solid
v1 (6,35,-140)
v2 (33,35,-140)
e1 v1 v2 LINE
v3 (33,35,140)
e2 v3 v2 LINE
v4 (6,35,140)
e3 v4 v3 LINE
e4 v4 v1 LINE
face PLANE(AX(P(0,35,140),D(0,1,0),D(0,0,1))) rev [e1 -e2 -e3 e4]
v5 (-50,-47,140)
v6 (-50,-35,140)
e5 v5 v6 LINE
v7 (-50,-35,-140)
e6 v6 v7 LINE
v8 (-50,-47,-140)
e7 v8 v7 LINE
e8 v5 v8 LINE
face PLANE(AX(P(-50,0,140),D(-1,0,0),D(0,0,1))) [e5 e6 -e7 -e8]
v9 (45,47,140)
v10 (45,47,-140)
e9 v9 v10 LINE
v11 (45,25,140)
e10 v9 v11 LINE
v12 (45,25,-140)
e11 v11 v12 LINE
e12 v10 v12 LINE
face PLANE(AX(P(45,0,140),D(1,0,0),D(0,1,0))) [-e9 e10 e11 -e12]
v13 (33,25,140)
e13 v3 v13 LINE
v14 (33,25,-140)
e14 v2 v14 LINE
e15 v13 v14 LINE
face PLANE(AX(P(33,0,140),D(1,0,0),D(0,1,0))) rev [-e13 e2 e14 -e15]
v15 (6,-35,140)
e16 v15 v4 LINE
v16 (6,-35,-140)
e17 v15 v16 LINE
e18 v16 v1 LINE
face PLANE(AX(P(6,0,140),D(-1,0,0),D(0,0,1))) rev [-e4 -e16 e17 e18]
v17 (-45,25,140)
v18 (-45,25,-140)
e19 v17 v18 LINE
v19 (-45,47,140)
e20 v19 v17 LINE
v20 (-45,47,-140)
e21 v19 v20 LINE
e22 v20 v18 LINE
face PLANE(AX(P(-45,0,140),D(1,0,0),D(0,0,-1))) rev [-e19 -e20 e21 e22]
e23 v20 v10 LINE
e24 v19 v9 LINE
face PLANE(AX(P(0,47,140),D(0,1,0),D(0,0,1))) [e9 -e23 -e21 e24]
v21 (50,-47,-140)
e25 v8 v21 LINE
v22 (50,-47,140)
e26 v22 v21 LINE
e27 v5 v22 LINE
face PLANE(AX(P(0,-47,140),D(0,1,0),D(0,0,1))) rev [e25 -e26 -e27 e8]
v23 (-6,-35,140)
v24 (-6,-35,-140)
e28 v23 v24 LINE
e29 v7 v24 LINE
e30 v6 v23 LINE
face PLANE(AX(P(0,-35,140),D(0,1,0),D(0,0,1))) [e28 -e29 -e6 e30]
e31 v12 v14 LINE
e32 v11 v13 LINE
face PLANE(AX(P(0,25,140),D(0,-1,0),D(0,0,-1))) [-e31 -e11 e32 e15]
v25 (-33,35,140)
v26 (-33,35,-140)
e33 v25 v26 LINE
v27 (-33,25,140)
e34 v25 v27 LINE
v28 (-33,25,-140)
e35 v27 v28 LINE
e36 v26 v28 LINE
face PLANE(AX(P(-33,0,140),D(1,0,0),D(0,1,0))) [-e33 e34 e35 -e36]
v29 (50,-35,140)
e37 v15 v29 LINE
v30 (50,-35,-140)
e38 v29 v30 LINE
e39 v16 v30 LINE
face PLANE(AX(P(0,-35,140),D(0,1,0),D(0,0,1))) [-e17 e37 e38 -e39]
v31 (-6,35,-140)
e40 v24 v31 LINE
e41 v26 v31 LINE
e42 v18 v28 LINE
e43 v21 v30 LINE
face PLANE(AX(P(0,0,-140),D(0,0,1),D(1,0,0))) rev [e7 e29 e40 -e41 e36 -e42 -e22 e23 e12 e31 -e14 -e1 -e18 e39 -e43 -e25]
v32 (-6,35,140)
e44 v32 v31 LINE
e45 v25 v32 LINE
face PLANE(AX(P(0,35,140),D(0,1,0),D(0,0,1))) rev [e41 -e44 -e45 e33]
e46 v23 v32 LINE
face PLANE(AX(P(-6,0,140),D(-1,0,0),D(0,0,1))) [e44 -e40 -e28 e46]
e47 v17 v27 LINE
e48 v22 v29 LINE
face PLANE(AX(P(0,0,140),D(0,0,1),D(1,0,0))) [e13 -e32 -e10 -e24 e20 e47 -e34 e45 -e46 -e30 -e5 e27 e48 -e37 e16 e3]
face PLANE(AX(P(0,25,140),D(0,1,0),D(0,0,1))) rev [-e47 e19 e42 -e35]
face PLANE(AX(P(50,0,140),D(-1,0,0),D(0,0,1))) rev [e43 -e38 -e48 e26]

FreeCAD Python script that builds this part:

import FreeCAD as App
import Part
import Sketcher

V = App.Vector


def add_polygon(sketch, points):
    """Adds a closed chain of lines whose ends are joined by coincident constraints."""
    first, n = sketch.GeometryCount, len(points)
    for a, b in zip(points, points[1:] + points[:1]):
        sketch.addGeometry(Part.LineSegment(App.Vector(*a, 0), App.Vector(*b, 0)), False)
    for i in range(n):
        sketch.addConstraint(Sketcher.Constraint("Coincident", first + i, 2, first + (i + 1) % n, 1))

doc = App.newDocument("Part")
params = doc.addObject("Spreadsheet::Sheet", "Params")
for row, (alias, value) in enumerate([
    ("sketch1_width", "90 mm"),
    ("sketch1_width2", "12 mm"),
    ("sketch1_width3", "27 mm"),
    ("sketch1_width4", "44 mm"),
    ("sketch1_height", "22 mm"),
    ("pad1_length", "280 mm"),
], start=1):
    params.set(f"A{row}", alias)
    params.set(f"B{row}", "=" + value)
    params.setAlias(f"B{row}", alias)

body = doc.addObject("PartDesign::Body", "Body")

# Sketch on XY plane
sketch1 = doc.addObject("Sketcher::SketchObject", "Sketch")
body.addObject(sketch1)
sketch1.AttachmentSupport = (doc.XY_Plane, [""])
sketch1.MapMode = "FlatFace"
add_polygon(sketch1, [(45, 47), (-45, 47), (-45, 25), (-33, 25), (-33, 35), (-6, 35), (-6, -35), (-50, -35), (-50, -47), (50, -47), (50, -35), (6, -35), (6, 35), (33, 35), (33, 25), (45, 25)])  # lines 0-15
sketch1.addConstraint([
    Sketcher.Constraint("Horizontal", 0),
    Sketcher.Constraint("Vertical", 1),
    Sketcher.Constraint("Horizontal", 2),
    Sketcher.Constraint("Vertical", 3),
    Sketcher.Constraint("Horizontal", 4),
    Sketcher.Constraint("Vertical", 5),
    Sketcher.Constraint("Horizontal", 6),
    Sketcher.Constraint("Vertical", 7),
    Sketcher.Constraint("Horizontal", 8),
    Sketcher.Constraint("Vertical", 9),
    Sketcher.Constraint("Horizontal", 10),
    Sketcher.Constraint("Vertical", 11),
    Sketcher.Constraint("Horizontal", 12),
    Sketcher.Constraint("Vertical", 13),
    Sketcher.Constraint("Horizontal", 14),
    Sketcher.Constraint("Vertical", 15),
    Sketcher.Constraint("Symmetric", 4, 2, 10, 2, -1, 1),
    Sketcher.Constraint("Symmetric", 6, 2, 9, 2, -2),
    Sketcher.Constraint("Symmetric", 3, 2, 12, 2, -2),
    Sketcher.Constraint("Symmetric", 1, 2, 14, 2, -2),
    Sketcher.Constraint("Equal", 14, 7),
    Sketcher.Constraint("DistanceX", 0, 2, 0, 1, 90.0),
    Sketcher.Constraint("DistanceX", 2, 1, 2, 2, 12.0),
    Sketcher.Constraint("DistanceX", 4, 1, 4, 2, 27.0),
    Sketcher.Constraint("DistanceX", 6, 2, 6, 1, 44.0),
    Sketcher.Constraint("DistanceY", 1, 2, 1, 1, 22.0),
    Sketcher.Constraint("DistanceY", 3, 1, 3, 2, 10.0),
    Sketcher.Constraint("DistanceY", 5, 2, 5, 1, 70.0),
])
sketch1.setExpression("Constraints[37]", "Params.sketch1_width")
sketch1.setExpression("Constraints[38]", "Params.sketch1_width2")
sketch1.setExpression("Constraints[39]", "Params.sketch1_width3")
sketch1.setExpression("Constraints[40]", "Params.sketch1_width4")
sketch1.setExpression("Constraints[41]", "Params.sketch1_height")
pad1 = doc.addObject("PartDesign::Pad", "Pad")
body.addObject(pad1)
pad1.Profile = sketch1
pad1.setExpression("Length", "Params.pad1_length")
pad1.Midplane = True

doc.recompute()
